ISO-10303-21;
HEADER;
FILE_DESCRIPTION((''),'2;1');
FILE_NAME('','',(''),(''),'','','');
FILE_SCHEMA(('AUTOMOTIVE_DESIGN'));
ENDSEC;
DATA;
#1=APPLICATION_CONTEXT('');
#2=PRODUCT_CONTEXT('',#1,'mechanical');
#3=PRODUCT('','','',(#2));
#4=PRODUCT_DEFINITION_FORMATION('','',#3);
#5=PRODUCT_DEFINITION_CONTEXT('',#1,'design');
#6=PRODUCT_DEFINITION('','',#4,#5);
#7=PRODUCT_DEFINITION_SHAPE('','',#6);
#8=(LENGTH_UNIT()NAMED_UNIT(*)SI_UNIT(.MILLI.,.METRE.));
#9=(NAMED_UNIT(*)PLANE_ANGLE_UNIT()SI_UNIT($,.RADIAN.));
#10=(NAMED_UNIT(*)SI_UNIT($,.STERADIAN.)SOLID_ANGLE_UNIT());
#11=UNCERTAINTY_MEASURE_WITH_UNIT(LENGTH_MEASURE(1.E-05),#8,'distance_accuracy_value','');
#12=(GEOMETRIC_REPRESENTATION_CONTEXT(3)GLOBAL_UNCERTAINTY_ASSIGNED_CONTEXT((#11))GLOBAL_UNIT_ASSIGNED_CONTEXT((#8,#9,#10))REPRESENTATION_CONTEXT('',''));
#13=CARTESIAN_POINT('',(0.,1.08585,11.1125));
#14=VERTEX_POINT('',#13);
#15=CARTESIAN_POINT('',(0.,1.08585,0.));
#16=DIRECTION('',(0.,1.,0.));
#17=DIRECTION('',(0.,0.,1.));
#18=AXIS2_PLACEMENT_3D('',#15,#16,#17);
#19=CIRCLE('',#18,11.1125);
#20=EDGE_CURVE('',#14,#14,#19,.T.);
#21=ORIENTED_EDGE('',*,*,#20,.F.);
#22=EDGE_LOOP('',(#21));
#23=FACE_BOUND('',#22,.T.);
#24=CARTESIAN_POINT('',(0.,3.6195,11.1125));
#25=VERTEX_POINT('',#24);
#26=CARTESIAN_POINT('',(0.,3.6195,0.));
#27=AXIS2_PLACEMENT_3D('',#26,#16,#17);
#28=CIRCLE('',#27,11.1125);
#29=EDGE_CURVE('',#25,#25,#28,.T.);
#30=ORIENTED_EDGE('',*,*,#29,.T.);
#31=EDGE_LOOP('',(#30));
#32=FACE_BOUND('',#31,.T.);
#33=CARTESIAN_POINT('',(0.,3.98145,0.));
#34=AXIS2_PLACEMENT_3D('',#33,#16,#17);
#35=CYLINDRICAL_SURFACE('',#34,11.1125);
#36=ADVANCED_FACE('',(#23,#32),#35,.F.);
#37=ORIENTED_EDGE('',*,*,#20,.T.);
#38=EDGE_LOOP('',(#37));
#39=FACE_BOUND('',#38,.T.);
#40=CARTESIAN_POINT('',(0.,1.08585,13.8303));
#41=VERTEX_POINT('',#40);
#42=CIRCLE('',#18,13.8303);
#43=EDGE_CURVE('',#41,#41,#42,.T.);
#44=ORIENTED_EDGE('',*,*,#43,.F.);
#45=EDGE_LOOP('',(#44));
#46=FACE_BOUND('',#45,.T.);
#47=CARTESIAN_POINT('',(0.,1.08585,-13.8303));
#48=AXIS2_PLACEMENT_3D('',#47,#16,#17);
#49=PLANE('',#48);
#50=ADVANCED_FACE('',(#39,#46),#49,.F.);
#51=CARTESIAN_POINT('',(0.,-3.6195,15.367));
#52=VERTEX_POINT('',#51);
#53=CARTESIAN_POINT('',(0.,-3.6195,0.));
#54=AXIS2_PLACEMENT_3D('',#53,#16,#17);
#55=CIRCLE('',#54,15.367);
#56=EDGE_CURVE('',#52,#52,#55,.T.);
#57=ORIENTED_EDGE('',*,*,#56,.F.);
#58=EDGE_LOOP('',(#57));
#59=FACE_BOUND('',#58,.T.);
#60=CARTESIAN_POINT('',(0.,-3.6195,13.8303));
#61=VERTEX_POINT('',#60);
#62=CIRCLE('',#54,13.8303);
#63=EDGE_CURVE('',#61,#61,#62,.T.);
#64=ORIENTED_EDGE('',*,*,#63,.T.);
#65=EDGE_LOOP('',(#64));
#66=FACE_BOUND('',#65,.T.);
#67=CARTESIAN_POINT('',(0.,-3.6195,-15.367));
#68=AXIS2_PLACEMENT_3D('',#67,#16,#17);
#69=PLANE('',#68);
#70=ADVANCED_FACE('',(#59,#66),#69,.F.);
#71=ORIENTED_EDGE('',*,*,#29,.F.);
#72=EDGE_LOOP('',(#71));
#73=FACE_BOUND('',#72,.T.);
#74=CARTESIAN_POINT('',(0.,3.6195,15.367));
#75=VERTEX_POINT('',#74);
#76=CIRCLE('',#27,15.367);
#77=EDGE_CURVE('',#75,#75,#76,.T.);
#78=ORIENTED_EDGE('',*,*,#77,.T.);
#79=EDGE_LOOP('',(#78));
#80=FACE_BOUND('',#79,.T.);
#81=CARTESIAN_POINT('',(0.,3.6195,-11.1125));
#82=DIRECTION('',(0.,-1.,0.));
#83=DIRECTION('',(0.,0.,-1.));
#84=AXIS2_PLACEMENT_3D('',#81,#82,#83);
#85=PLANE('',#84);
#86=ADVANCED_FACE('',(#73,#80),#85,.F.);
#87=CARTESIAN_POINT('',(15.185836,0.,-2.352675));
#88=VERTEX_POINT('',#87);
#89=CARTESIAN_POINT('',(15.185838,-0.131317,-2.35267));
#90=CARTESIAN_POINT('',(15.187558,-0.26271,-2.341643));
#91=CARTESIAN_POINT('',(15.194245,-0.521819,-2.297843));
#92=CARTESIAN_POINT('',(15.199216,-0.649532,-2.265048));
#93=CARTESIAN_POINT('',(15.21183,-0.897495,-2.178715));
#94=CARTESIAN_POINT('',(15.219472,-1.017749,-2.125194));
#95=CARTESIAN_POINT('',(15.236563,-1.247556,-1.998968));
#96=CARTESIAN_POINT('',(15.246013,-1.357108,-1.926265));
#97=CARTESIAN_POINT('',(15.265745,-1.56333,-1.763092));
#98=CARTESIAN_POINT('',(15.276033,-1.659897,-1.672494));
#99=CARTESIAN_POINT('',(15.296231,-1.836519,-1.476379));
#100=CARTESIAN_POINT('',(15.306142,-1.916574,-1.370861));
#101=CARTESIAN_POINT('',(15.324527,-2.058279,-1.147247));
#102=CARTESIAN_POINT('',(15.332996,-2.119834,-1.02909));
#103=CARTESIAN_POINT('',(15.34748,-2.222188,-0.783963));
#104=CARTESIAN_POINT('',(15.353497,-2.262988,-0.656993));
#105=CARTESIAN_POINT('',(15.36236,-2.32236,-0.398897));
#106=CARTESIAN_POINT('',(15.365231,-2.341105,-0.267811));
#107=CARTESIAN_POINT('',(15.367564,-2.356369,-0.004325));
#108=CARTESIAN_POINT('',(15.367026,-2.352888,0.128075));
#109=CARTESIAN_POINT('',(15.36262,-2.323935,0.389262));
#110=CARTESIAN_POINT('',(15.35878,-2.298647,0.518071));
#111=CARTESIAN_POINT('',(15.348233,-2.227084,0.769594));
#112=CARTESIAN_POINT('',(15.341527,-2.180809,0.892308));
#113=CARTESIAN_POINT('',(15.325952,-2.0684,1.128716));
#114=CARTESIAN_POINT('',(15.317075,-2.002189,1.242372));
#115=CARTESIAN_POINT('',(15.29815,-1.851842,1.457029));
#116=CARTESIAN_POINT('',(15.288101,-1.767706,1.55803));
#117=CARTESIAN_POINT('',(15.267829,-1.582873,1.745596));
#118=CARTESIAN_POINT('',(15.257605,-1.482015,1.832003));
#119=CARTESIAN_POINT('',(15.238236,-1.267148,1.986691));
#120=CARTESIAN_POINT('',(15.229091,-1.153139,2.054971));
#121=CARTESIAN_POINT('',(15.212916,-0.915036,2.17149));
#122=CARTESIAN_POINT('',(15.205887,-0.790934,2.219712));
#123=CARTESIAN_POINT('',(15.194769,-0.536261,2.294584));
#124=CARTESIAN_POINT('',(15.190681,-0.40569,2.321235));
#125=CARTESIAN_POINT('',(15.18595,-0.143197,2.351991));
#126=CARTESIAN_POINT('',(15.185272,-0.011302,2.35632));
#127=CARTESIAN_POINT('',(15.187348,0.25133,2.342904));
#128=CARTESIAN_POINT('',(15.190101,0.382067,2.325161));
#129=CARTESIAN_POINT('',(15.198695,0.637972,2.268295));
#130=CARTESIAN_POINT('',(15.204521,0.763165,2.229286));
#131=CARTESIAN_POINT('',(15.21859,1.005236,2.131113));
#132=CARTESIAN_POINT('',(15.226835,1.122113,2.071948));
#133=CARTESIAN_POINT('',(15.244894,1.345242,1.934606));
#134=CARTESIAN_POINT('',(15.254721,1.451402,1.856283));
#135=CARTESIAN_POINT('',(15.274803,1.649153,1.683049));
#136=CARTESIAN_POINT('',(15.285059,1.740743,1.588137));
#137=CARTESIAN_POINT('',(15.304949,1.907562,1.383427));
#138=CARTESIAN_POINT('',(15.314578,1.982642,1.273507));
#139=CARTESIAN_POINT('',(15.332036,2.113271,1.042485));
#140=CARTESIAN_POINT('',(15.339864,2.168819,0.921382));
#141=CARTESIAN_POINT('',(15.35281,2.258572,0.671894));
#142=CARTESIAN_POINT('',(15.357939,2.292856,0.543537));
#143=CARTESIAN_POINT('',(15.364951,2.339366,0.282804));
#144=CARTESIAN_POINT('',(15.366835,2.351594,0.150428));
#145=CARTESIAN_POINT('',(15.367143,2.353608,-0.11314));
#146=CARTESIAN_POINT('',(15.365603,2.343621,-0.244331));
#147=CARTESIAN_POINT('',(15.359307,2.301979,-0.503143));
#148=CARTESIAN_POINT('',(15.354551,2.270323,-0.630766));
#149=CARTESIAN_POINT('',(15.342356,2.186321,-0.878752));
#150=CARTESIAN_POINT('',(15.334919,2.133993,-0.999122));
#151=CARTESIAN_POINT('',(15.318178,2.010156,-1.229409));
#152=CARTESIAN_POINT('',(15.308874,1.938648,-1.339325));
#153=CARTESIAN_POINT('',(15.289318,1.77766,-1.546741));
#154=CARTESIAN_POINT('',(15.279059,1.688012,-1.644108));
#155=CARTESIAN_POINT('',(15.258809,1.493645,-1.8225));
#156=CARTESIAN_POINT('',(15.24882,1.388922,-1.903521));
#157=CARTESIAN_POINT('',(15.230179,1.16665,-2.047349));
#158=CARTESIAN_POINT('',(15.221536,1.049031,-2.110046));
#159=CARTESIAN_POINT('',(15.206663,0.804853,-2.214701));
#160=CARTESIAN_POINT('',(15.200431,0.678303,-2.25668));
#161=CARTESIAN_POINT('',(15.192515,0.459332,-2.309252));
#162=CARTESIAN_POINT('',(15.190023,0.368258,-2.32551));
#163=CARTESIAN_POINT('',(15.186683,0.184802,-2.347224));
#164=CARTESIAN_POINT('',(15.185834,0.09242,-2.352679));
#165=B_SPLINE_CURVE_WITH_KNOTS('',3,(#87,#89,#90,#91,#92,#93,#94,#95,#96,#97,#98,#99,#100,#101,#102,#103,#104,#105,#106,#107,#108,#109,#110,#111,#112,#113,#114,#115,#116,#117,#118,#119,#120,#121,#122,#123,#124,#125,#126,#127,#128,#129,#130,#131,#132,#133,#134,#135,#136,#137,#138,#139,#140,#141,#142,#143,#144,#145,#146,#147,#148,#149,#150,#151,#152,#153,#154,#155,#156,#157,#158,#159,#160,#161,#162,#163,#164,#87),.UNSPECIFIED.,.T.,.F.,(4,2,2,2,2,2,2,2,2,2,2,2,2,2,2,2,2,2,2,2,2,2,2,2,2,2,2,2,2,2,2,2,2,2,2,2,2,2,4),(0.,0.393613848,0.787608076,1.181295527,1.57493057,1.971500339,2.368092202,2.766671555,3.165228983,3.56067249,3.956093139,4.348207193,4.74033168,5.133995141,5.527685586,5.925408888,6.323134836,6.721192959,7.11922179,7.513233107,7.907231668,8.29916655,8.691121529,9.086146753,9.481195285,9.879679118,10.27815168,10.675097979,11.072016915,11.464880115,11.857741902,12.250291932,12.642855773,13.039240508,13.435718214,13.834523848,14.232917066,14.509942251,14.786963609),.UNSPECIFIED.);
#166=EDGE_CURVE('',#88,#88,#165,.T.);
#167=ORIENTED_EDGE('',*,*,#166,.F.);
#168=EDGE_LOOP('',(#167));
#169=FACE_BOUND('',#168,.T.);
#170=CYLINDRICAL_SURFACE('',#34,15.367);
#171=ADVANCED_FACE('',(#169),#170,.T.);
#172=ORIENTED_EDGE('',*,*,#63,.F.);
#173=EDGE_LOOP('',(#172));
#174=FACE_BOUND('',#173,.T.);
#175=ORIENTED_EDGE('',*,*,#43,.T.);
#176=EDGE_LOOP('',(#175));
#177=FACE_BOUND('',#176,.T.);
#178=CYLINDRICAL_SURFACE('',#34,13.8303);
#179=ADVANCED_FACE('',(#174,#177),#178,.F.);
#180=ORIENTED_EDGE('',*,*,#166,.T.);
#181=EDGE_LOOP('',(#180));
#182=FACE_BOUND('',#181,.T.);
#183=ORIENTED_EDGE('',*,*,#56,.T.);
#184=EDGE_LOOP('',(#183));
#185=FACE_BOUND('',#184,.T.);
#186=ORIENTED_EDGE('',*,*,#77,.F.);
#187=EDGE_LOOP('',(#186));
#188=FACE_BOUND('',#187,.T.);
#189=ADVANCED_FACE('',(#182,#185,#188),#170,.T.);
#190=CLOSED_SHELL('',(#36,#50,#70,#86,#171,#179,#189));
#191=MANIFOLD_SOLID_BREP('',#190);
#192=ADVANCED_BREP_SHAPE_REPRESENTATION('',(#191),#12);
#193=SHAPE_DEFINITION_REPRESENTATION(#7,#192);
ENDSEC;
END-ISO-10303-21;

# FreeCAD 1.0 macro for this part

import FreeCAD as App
import Part
import Sketcher

V = App.Vector
Q = App.Units.Quantity

doc = App.newDocument("Part")
body = doc.addObject("PartDesign::Body", "Body")

# Sketch on YZ plane
sketch1 = doc.addObject("Sketcher::SketchObject", "Sketch")
body.addObject(sketch1)
sketch1.AttachmentSupport = (doc.YZ_Plane, [""])
sketch1.MapMode = "FlatFace"
sketch1.addGeometry(Part.LineSegment(V(3.6195, -11.1125, 0), V(1.08585, -11.1125, 0)), False)
sketch1.addGeometry(Part.LineSegment(V(1.08585, -11.1125, 0), V(1.08585, -13.8303, 0)), False)
sketch1.addGeometry(Part.LineSegment(V(1.08585, -13.8303, 0), V(-3.6195, -13.8303, 0)), False)
sketch1.addGeometry(Part.LineSegment(V(-3.6195, -13.8303, 0), V(-3.6195, -15.367, 0)), False)
sketch1.addGeometry(Part.LineSegment(V(-3.6195, -15.367, 0), V(3.6195, -15.367, 0)), False)
sketch1.addGeometry(Part.LineSegment(V(3.6195, -15.367, 0), V(3.6195, -11.1125, 0)), False)
sketch1.addConstraint(Sketcher.Constraint("Coincident", 0, 2, 1, 1))
sketch1.addConstraint(Sketcher.Constraint("Coincident", 1, 2, 2, 1))
sketch1.addConstraint(Sketcher.Constraint("Coincident", 2, 2, 3, 1))
sketch1.addConstraint(Sketcher.Constraint("Coincident", 3, 2, 4, 1))
sketch1.addConstraint(Sketcher.Constraint("Coincident", 4, 2, 5, 1))
sketch1.addConstraint(Sketcher.Constraint("Coincident", 5, 2, 0, 1))
sketch1.addConstraint(Sketcher.Constraint("Horizontal", 0))
sketch1.addConstraint(Sketcher.Constraint("Vertical", 1))
sketch1.addConstraint(Sketcher.Constraint("Horizontal", 2))
sketch1.addConstraint(Sketcher.Constraint("Vertical", 3))
sketch1.addConstraint(Sketcher.Constraint("Horizontal", 4))
sketch1.addConstraint(Sketcher.Constraint("Vertical", 5))
sketch1.addConstraint(Sketcher.Constraint("DistanceX", 4, 1, 4, 2, Q("0.285 in")))
sketch1.addConstraint(Sketcher.Constraint("DistanceY", 1, 2, 1, 1, Q("0.107 in")))
sketch1.addConstraint(Sketcher.Constraint("DistanceY", 3, 2, 3, 1, Q("0.0605 in")))
sketch1.addConstraint(Sketcher.Constraint("DistanceY", 0, 2, -1, 1, Q("0.4375 in")))
sketch1.addConstraint(Sketcher.Constraint("DistanceX", 2, 2, -1, 1, Q("0.1425 in")))
sketch1.addConstraint(Sketcher.Constraint("DistanceX", 0, 2, 0, 1, 2.53365))
revolution = doc.addObject("PartDesign::Revolution", "Revolution")
body.addObject(revolution)
revolution.Profile = sketch1
revolution.ReferenceAxis = (sketch1, ["H_Axis"])
revolution.Angle = 360

doc.recompute()
